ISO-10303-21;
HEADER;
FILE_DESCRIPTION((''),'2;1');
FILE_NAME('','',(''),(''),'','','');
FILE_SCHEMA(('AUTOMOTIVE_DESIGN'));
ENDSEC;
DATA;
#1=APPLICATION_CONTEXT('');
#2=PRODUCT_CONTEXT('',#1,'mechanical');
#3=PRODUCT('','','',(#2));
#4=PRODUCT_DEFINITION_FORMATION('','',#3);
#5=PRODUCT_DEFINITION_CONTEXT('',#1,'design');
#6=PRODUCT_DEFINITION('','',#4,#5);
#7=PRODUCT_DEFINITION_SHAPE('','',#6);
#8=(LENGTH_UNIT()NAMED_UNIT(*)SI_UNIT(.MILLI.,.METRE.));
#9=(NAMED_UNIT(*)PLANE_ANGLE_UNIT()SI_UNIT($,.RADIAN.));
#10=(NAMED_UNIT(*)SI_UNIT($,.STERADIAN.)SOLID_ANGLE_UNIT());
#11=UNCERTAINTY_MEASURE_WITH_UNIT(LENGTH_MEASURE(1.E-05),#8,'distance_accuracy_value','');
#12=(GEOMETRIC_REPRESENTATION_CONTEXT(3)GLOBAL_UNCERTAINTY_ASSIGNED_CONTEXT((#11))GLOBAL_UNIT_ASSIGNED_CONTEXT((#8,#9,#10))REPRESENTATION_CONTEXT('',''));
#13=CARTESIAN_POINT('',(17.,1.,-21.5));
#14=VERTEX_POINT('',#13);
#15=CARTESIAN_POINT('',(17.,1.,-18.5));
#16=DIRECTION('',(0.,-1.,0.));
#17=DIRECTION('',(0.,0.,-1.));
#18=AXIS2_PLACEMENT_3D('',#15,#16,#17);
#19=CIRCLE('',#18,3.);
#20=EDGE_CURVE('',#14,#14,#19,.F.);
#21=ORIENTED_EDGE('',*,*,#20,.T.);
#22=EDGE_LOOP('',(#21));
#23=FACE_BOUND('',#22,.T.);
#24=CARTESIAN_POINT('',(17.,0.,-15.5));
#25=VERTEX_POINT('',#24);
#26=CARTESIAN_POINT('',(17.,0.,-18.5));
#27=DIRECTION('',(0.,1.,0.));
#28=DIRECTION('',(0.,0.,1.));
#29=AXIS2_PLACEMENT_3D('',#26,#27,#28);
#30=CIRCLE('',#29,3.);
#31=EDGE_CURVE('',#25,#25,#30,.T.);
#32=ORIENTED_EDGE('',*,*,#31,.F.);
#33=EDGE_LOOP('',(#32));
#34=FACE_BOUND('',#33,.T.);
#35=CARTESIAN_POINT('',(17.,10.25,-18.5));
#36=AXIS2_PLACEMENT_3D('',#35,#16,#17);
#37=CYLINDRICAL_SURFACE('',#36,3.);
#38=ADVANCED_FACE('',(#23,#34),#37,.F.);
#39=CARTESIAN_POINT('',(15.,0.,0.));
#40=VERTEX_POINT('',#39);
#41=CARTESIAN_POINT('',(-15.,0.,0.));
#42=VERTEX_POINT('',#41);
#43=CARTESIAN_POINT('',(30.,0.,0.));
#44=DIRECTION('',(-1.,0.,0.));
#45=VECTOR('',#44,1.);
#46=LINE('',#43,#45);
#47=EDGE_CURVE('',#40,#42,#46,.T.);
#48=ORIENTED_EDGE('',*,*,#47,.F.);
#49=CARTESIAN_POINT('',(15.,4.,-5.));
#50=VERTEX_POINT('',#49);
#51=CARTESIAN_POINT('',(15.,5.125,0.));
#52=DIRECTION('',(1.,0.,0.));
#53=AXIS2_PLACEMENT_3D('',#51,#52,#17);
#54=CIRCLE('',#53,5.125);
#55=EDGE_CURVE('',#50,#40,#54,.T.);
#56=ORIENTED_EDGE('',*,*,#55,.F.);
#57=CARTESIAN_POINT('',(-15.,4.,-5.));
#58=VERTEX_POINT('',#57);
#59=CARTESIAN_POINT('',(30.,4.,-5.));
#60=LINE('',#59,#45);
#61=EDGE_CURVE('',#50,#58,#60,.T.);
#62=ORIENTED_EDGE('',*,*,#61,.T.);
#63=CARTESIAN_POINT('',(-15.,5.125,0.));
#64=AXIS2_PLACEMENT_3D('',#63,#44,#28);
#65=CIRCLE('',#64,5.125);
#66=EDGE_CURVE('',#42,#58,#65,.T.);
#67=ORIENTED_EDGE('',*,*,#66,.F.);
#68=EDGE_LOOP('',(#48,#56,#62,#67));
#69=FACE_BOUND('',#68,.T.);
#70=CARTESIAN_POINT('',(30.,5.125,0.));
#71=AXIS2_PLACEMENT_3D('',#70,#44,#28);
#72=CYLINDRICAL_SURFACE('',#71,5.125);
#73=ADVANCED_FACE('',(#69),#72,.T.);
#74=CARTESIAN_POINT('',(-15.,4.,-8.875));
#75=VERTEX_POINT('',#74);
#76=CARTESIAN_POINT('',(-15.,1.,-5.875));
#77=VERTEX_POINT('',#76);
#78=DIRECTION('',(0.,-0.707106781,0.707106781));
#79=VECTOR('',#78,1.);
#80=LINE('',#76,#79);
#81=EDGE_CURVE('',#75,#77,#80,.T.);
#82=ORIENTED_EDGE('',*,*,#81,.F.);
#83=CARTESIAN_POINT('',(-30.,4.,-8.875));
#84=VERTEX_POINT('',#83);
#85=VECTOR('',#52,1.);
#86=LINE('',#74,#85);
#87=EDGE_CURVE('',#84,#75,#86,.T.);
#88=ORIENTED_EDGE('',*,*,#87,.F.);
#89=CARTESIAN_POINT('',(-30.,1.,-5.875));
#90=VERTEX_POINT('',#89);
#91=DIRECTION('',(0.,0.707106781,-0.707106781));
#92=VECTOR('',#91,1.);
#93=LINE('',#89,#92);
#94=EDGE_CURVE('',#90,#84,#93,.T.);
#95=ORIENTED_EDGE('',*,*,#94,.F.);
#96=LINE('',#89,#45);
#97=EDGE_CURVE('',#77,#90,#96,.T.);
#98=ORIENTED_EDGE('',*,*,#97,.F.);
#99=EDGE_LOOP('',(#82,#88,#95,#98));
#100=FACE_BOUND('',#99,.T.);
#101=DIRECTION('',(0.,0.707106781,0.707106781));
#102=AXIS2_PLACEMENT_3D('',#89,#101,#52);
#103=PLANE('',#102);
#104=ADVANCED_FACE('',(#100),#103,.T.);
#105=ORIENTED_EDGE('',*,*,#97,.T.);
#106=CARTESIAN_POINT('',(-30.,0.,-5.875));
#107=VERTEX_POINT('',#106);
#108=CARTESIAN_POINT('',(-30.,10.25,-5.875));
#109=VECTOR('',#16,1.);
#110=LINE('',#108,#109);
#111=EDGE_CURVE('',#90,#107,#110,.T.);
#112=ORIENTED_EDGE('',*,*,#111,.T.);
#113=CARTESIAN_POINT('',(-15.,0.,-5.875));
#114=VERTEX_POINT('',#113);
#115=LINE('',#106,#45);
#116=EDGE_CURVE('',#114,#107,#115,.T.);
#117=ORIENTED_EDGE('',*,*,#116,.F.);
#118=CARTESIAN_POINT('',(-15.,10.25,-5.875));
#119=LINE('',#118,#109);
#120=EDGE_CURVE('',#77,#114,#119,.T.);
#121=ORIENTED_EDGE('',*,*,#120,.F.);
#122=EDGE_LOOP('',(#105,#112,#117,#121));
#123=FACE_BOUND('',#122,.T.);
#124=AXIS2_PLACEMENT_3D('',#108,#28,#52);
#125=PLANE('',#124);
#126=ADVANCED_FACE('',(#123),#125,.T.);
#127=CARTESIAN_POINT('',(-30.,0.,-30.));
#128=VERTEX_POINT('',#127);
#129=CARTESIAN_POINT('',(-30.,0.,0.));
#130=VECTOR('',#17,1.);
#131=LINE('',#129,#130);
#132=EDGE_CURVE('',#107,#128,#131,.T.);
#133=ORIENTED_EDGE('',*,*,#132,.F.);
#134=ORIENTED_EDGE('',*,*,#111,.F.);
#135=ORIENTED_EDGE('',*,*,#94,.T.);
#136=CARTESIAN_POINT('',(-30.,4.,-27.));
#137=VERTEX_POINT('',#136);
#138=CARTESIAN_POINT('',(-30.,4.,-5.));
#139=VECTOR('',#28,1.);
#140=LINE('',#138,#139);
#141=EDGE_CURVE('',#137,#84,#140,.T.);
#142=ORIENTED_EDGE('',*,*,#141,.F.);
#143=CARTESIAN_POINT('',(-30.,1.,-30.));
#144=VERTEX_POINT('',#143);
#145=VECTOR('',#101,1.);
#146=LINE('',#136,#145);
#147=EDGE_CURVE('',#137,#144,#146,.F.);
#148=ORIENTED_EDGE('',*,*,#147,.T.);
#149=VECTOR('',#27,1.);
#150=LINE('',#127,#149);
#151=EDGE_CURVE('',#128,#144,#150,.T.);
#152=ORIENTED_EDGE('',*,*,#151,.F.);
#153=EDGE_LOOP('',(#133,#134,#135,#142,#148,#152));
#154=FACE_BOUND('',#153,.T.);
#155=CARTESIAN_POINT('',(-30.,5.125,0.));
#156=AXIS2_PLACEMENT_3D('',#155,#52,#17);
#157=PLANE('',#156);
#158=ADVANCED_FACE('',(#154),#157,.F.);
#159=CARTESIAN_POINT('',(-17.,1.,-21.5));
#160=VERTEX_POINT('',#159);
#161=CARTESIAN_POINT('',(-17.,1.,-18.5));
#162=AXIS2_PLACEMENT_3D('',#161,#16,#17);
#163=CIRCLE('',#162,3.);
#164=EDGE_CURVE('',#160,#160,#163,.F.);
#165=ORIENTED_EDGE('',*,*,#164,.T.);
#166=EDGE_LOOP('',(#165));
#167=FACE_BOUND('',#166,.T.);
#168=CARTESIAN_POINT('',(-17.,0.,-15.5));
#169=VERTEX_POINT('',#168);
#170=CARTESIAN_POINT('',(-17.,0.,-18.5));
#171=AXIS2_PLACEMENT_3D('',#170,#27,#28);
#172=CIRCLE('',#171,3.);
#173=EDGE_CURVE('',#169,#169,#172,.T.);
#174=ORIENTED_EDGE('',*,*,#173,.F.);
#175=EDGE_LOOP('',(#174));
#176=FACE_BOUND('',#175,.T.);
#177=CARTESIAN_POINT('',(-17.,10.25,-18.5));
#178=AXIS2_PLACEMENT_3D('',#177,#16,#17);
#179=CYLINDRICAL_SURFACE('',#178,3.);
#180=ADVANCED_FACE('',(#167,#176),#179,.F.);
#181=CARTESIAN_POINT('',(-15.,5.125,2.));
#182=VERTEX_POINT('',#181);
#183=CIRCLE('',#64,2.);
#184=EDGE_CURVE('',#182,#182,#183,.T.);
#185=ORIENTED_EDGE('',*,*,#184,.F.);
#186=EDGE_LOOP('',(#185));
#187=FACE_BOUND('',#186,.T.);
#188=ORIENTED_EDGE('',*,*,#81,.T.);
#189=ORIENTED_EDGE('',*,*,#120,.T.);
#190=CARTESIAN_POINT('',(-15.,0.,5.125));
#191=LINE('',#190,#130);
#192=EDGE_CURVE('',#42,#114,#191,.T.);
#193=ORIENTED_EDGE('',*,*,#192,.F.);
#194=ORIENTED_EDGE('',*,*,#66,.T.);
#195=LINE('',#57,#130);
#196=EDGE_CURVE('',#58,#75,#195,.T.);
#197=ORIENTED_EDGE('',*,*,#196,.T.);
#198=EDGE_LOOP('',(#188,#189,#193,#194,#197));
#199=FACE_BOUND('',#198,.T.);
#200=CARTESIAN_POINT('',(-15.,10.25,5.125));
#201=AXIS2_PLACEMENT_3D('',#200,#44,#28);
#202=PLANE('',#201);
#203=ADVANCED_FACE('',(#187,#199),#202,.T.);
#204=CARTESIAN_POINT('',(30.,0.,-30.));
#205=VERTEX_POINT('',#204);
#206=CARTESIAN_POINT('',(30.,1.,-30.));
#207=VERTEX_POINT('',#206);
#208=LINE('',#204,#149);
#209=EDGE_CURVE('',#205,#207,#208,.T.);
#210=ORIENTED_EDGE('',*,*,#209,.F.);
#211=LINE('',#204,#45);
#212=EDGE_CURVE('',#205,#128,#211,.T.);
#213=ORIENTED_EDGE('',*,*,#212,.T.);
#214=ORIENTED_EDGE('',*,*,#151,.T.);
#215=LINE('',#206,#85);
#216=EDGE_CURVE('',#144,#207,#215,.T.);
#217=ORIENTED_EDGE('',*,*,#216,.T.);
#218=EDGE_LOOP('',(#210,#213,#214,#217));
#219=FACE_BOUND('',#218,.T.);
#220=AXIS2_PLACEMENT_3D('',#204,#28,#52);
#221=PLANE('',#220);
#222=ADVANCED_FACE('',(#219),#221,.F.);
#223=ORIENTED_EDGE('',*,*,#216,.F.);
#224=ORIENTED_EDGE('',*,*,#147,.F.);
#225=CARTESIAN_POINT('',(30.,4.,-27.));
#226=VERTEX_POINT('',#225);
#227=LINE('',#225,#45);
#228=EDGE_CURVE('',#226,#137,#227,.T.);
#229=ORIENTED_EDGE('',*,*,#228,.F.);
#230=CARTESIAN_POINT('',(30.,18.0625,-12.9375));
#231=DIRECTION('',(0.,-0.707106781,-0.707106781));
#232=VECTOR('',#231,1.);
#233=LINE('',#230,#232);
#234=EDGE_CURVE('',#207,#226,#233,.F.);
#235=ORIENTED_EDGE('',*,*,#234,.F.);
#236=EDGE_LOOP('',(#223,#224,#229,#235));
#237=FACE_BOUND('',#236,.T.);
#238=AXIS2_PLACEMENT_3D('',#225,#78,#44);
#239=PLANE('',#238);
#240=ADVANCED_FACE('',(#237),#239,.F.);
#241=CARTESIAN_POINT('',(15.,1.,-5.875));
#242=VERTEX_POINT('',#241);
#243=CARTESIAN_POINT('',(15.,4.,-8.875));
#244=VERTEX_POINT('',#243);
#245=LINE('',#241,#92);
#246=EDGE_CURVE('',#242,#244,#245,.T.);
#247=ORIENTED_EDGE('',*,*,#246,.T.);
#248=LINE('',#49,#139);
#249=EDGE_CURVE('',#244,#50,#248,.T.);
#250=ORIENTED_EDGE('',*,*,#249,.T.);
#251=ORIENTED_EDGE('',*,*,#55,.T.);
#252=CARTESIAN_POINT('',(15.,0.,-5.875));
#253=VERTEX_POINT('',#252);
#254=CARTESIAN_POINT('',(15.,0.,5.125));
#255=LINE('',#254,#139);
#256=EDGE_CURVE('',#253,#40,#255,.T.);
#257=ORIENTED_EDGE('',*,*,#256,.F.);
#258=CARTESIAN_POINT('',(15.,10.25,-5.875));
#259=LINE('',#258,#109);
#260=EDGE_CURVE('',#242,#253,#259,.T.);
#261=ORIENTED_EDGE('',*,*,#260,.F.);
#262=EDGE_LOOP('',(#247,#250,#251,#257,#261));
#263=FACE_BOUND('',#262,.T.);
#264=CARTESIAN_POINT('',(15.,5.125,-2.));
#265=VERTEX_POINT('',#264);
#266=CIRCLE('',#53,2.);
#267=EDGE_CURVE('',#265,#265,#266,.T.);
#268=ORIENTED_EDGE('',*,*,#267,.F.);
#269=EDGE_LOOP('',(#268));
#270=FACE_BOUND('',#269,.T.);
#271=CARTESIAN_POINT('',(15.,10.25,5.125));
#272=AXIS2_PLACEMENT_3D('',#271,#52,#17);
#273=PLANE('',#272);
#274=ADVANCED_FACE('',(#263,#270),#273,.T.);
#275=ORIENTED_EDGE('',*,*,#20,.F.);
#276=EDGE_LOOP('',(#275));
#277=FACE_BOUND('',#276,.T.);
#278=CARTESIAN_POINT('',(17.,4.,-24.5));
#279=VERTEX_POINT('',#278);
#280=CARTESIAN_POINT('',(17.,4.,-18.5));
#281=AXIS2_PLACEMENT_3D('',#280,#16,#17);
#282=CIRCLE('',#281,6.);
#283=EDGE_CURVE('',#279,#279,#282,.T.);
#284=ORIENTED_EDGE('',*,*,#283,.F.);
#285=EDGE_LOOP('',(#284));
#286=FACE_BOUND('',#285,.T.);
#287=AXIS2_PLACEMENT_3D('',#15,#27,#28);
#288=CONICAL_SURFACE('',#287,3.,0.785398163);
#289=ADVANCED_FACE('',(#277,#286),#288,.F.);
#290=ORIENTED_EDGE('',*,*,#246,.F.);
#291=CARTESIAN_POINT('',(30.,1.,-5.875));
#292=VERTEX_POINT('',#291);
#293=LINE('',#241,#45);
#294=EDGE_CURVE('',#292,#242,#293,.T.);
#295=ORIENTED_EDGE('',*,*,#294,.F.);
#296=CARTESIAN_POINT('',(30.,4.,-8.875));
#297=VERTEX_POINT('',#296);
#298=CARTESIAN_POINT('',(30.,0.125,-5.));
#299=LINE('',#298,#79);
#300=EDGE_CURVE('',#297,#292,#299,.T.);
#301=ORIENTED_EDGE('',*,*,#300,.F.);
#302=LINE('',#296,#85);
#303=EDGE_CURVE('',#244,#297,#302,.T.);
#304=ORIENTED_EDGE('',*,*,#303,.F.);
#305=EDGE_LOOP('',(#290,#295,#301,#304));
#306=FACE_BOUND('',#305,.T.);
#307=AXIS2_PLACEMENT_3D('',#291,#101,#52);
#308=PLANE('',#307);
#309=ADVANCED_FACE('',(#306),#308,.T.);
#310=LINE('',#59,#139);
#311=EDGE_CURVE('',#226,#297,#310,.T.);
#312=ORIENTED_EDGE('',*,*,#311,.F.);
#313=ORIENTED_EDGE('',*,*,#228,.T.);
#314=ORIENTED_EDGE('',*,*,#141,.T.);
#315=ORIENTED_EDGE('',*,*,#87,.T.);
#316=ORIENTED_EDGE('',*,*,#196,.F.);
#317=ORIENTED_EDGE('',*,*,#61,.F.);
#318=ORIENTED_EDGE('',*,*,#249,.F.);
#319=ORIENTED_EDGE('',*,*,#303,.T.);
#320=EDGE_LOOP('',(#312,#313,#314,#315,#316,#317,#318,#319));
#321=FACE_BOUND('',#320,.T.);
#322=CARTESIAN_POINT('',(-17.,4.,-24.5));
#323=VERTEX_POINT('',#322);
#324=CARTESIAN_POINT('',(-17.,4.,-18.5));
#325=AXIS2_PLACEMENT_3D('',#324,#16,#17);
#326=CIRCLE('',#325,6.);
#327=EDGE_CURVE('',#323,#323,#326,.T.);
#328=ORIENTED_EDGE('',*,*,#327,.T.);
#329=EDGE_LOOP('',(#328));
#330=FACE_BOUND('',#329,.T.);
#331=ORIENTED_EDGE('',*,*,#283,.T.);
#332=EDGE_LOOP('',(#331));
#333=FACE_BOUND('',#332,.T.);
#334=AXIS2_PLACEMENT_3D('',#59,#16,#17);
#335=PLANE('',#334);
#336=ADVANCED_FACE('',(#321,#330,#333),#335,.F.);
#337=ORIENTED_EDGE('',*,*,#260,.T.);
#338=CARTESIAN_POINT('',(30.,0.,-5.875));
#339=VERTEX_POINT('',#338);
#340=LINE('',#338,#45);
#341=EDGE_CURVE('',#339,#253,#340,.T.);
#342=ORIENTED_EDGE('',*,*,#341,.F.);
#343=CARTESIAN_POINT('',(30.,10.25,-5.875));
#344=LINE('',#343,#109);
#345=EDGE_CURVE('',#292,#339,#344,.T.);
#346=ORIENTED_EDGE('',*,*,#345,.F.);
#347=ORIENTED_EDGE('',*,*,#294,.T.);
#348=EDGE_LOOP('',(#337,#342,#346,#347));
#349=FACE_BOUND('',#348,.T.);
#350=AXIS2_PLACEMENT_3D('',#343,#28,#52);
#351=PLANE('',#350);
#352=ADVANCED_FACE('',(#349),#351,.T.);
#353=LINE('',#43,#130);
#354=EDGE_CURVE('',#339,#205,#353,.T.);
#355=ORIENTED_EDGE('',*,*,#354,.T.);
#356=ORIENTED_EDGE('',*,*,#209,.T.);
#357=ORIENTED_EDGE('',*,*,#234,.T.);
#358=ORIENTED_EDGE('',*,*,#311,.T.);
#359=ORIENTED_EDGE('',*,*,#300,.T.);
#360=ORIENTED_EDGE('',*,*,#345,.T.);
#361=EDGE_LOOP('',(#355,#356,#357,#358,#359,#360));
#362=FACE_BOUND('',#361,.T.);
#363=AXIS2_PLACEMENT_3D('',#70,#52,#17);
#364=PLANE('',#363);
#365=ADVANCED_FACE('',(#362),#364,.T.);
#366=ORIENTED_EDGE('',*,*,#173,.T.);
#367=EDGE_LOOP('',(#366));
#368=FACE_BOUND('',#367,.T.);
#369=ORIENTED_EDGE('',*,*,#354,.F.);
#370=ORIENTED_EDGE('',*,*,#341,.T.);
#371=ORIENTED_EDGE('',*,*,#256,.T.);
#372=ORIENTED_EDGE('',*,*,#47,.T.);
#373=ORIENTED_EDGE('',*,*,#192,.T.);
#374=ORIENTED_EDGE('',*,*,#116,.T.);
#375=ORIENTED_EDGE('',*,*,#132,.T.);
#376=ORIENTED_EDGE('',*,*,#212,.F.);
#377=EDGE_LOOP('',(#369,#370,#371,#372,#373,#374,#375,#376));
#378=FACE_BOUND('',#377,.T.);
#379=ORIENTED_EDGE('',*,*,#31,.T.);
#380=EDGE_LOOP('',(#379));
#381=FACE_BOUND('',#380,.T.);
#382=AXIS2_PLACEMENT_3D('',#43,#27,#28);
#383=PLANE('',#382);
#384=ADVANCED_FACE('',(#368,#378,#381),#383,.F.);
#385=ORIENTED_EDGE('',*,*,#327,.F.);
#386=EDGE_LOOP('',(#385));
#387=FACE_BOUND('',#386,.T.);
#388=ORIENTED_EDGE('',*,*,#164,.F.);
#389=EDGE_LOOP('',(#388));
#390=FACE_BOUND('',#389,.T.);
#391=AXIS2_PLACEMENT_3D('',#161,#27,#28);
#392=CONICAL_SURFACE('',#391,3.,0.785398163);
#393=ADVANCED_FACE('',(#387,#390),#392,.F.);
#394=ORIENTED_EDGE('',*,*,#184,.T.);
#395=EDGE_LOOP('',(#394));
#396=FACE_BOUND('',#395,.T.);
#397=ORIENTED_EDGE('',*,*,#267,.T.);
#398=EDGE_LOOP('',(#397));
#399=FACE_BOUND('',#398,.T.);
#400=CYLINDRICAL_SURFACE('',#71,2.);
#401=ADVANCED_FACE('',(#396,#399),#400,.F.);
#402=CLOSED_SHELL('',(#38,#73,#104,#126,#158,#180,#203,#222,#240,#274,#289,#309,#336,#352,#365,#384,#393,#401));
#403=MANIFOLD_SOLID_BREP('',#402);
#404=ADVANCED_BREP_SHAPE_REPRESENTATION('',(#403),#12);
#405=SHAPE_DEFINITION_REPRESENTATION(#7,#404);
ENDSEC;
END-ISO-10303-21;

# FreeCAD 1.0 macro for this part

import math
import FreeCAD as App
import Part
import Sketcher

V = App.Vector
Q = App.Units.Quantity


def edges_at(feature, points):
    """Names of the edges that pass closest to the given points."""
    edges = feature.Shape.Edges
    near = lambda p: min(range(len(edges)), key=lambda i: edges[i].distToShape(Part.Vertex(*p))[0])
    return sorted({f"Edge{near(p) + 1}" for p in points})

doc = App.newDocument("Part")
body = doc.addObject("PartDesign::Body", "Body")

sketch1 = body.newObject("Sketcher::SketchObject", "Sketch")
sketch1.AttachmentSupport = (doc.getObject("YZ_Plane"), [""])
sketch1.MapMode = "FlatFace"
sketch1.addGeometry([
    Part.LineSegment(V(0, 0, 0), V(0, -30, 0)),
    Part.LineSegment(V(0, -30, 0), V(4, -30, 0)),
    Part.LineSegment(V(4, -30, 0), V(4, -5, 0)),
    Part.ArcOfCircle(Part.Circle(V(5.1, 0, 0), V(0, 0, 1), 5.1), math.radians(-103), math.radians(180)),
    Part.Circle(V(5.1, 0, 0), V(0, 0, 1), 2),
], False)
sketch1.addConstraint([
    Sketcher.Constraint("Coincident", 0, 2, 1, 1),
    Sketcher.Constraint("Coincident", 1, 2, 2, 1),
    Sketcher.Constraint("Coincident", 2, 2, 3, 1),
    Sketcher.Constraint("Tangent", 3, 2, 0, 1),
    Sketcher.Constraint("Vertical", 0),
    Sketcher.Constraint("Horizontal", 1),
    Sketcher.Constraint("Vertical", 2),
    Sketcher.Constraint("Coincident", 3, 2, -1, 1),
    Sketcher.Constraint("Coincident", 4, 3, 3, 3),
    Sketcher.Constraint("Diameter", 4, Q("4 mm")),
    Sketcher.Constraint("DistanceX", 1, 1, 1, 2, Q("4 mm")),
    Sketcher.Constraint("DistanceY", 0, 2, 0, 1, Q("30 mm")),
    Sketcher.Constraint("DistanceY", 2, 1, 2, 2, Q("25 mm")),
])
pad1 = body.newObject("PartDesign::Pad", "Pad")
pad1.Profile = sketch1
pad1.Length = 60
pad1.Midplane = True

sketch2 = body.newObject("Sketcher::SketchObject", "Sketch001")
sketch2.AttachmentSupport = (doc.getObject("XZ_Plane"), [""])
sketch2.MapMode = "FlatFace"
sketch2.addGeometry([
    Part.Circle(V(-17, -18.5, 0), V(0, 0, 1), 3),
    Part.Circle(V(17, -18.5, 0), V(0, 0, 1), 3),
    Part.LineSegment(V(15, -5.9, 0), V(15, 5.1, 0)),
    Part.LineSegment(V(15, 5.1, 0), V(30, 5.1, 0)),
    Part.LineSegment(V(30, 5.1, 0), V(30, -5.9, 0)),
    Part.LineSegment(V(30, -5.9, 0), V(15, -5.9, 0)),
    Part.LineSegment(V(-30, -5.9, 0), V(-30, 5.1, 0)),
    Part.LineSegment(V(-30, 5.1, 0), V(-15, 5.1, 0)),
    Part.LineSegment(V(-15, 5.1, 0), V(-15, -5.9, 0)),
    Part.LineSegment(V(-15, -5.9, 0), V(-30, -5.9, 0)),
], False)
sketch2.addConstraint([
    Sketcher.Constraint("Coincident", 2, 2, 3, 1),
    Sketcher.Constraint("Coincident", 3, 2, 4, 1),
    Sketcher.Constraint("Coincident", 4, 2, 5, 1),
    Sketcher.Constraint("Coincident", 5, 2, 2, 1),
    Sketcher.Constraint("Coincident", 6, 2, 7, 1),
    Sketcher.Constraint("Coincident", 7, 2, 8, 1),
    Sketcher.Constraint("Coincident", 8, 2, 9, 1),
    Sketcher.Constraint("Coincident", 9, 2, 6, 1),
    Sketcher.Constraint("Vertical", 2),
    Sketcher.Constraint("Horizontal", 3),
    Sketcher.Constraint("Vertical", 4),
    Sketcher.Constraint("Horizontal", 5),
    Sketcher.Constraint("Vertical", 6),
    Sketcher.Constraint("Horizontal", 7),
    Sketcher.Constraint("Vertical", 8),
    Sketcher.Constraint("Horizontal", 9),
    Sketcher.Constraint("Equal", 0, 1),
    Sketcher.Constraint("Symmetric", 0, 3, 1, 3, -2),
    Sketcher.Constraint("Symmetric", 3, 2, 6, 2, -2),
    Sketcher.Constraint("Symmetric", 5, 2, 8, 2, -2),
    Sketcher.Constraint("Diameter", 0, Q("6 mm")),
    Sketcher.Constraint("DistanceX", 3, 1, 3, 2, Q("15 mm")),
    Sketcher.Constraint("DistanceY", 2, 1, 2, 2, Q("11 mm")),
    Sketcher.Constraint("DistanceX", 0, 3, -1, 1, Q("17 mm")),
    Sketcher.Constraint("DistanceX", -1, 1, 2, 2, Q("15 mm")),
    Sketcher.Constraint("DistanceY", 0, 3, -1, 1, Q("18.5 mm")),
    Sketcher.Constraint("DistanceY", -1, 1, 2, 2, Q("5.125 mm")),
])
pocket1 = body.newObject("PartDesign::Pocket", "Pocket")
pocket1.Profile = sketch2
pocket1.Type = "ThroughAll"
doc.recompute()

chamfer = body.newObject("PartDesign::Chamfer", "Chamfer")
chamfer.Base = (pocket1, edges_at(pocket1, [
    (22.5, 4, -5.875),
    (-22.5, 4, -5.875),
    (17, 4, -15.5),
    (-17, 4, -15.5),
    (0, 4, -30),
]))
chamfer.Size = 3

doc.recompute()
